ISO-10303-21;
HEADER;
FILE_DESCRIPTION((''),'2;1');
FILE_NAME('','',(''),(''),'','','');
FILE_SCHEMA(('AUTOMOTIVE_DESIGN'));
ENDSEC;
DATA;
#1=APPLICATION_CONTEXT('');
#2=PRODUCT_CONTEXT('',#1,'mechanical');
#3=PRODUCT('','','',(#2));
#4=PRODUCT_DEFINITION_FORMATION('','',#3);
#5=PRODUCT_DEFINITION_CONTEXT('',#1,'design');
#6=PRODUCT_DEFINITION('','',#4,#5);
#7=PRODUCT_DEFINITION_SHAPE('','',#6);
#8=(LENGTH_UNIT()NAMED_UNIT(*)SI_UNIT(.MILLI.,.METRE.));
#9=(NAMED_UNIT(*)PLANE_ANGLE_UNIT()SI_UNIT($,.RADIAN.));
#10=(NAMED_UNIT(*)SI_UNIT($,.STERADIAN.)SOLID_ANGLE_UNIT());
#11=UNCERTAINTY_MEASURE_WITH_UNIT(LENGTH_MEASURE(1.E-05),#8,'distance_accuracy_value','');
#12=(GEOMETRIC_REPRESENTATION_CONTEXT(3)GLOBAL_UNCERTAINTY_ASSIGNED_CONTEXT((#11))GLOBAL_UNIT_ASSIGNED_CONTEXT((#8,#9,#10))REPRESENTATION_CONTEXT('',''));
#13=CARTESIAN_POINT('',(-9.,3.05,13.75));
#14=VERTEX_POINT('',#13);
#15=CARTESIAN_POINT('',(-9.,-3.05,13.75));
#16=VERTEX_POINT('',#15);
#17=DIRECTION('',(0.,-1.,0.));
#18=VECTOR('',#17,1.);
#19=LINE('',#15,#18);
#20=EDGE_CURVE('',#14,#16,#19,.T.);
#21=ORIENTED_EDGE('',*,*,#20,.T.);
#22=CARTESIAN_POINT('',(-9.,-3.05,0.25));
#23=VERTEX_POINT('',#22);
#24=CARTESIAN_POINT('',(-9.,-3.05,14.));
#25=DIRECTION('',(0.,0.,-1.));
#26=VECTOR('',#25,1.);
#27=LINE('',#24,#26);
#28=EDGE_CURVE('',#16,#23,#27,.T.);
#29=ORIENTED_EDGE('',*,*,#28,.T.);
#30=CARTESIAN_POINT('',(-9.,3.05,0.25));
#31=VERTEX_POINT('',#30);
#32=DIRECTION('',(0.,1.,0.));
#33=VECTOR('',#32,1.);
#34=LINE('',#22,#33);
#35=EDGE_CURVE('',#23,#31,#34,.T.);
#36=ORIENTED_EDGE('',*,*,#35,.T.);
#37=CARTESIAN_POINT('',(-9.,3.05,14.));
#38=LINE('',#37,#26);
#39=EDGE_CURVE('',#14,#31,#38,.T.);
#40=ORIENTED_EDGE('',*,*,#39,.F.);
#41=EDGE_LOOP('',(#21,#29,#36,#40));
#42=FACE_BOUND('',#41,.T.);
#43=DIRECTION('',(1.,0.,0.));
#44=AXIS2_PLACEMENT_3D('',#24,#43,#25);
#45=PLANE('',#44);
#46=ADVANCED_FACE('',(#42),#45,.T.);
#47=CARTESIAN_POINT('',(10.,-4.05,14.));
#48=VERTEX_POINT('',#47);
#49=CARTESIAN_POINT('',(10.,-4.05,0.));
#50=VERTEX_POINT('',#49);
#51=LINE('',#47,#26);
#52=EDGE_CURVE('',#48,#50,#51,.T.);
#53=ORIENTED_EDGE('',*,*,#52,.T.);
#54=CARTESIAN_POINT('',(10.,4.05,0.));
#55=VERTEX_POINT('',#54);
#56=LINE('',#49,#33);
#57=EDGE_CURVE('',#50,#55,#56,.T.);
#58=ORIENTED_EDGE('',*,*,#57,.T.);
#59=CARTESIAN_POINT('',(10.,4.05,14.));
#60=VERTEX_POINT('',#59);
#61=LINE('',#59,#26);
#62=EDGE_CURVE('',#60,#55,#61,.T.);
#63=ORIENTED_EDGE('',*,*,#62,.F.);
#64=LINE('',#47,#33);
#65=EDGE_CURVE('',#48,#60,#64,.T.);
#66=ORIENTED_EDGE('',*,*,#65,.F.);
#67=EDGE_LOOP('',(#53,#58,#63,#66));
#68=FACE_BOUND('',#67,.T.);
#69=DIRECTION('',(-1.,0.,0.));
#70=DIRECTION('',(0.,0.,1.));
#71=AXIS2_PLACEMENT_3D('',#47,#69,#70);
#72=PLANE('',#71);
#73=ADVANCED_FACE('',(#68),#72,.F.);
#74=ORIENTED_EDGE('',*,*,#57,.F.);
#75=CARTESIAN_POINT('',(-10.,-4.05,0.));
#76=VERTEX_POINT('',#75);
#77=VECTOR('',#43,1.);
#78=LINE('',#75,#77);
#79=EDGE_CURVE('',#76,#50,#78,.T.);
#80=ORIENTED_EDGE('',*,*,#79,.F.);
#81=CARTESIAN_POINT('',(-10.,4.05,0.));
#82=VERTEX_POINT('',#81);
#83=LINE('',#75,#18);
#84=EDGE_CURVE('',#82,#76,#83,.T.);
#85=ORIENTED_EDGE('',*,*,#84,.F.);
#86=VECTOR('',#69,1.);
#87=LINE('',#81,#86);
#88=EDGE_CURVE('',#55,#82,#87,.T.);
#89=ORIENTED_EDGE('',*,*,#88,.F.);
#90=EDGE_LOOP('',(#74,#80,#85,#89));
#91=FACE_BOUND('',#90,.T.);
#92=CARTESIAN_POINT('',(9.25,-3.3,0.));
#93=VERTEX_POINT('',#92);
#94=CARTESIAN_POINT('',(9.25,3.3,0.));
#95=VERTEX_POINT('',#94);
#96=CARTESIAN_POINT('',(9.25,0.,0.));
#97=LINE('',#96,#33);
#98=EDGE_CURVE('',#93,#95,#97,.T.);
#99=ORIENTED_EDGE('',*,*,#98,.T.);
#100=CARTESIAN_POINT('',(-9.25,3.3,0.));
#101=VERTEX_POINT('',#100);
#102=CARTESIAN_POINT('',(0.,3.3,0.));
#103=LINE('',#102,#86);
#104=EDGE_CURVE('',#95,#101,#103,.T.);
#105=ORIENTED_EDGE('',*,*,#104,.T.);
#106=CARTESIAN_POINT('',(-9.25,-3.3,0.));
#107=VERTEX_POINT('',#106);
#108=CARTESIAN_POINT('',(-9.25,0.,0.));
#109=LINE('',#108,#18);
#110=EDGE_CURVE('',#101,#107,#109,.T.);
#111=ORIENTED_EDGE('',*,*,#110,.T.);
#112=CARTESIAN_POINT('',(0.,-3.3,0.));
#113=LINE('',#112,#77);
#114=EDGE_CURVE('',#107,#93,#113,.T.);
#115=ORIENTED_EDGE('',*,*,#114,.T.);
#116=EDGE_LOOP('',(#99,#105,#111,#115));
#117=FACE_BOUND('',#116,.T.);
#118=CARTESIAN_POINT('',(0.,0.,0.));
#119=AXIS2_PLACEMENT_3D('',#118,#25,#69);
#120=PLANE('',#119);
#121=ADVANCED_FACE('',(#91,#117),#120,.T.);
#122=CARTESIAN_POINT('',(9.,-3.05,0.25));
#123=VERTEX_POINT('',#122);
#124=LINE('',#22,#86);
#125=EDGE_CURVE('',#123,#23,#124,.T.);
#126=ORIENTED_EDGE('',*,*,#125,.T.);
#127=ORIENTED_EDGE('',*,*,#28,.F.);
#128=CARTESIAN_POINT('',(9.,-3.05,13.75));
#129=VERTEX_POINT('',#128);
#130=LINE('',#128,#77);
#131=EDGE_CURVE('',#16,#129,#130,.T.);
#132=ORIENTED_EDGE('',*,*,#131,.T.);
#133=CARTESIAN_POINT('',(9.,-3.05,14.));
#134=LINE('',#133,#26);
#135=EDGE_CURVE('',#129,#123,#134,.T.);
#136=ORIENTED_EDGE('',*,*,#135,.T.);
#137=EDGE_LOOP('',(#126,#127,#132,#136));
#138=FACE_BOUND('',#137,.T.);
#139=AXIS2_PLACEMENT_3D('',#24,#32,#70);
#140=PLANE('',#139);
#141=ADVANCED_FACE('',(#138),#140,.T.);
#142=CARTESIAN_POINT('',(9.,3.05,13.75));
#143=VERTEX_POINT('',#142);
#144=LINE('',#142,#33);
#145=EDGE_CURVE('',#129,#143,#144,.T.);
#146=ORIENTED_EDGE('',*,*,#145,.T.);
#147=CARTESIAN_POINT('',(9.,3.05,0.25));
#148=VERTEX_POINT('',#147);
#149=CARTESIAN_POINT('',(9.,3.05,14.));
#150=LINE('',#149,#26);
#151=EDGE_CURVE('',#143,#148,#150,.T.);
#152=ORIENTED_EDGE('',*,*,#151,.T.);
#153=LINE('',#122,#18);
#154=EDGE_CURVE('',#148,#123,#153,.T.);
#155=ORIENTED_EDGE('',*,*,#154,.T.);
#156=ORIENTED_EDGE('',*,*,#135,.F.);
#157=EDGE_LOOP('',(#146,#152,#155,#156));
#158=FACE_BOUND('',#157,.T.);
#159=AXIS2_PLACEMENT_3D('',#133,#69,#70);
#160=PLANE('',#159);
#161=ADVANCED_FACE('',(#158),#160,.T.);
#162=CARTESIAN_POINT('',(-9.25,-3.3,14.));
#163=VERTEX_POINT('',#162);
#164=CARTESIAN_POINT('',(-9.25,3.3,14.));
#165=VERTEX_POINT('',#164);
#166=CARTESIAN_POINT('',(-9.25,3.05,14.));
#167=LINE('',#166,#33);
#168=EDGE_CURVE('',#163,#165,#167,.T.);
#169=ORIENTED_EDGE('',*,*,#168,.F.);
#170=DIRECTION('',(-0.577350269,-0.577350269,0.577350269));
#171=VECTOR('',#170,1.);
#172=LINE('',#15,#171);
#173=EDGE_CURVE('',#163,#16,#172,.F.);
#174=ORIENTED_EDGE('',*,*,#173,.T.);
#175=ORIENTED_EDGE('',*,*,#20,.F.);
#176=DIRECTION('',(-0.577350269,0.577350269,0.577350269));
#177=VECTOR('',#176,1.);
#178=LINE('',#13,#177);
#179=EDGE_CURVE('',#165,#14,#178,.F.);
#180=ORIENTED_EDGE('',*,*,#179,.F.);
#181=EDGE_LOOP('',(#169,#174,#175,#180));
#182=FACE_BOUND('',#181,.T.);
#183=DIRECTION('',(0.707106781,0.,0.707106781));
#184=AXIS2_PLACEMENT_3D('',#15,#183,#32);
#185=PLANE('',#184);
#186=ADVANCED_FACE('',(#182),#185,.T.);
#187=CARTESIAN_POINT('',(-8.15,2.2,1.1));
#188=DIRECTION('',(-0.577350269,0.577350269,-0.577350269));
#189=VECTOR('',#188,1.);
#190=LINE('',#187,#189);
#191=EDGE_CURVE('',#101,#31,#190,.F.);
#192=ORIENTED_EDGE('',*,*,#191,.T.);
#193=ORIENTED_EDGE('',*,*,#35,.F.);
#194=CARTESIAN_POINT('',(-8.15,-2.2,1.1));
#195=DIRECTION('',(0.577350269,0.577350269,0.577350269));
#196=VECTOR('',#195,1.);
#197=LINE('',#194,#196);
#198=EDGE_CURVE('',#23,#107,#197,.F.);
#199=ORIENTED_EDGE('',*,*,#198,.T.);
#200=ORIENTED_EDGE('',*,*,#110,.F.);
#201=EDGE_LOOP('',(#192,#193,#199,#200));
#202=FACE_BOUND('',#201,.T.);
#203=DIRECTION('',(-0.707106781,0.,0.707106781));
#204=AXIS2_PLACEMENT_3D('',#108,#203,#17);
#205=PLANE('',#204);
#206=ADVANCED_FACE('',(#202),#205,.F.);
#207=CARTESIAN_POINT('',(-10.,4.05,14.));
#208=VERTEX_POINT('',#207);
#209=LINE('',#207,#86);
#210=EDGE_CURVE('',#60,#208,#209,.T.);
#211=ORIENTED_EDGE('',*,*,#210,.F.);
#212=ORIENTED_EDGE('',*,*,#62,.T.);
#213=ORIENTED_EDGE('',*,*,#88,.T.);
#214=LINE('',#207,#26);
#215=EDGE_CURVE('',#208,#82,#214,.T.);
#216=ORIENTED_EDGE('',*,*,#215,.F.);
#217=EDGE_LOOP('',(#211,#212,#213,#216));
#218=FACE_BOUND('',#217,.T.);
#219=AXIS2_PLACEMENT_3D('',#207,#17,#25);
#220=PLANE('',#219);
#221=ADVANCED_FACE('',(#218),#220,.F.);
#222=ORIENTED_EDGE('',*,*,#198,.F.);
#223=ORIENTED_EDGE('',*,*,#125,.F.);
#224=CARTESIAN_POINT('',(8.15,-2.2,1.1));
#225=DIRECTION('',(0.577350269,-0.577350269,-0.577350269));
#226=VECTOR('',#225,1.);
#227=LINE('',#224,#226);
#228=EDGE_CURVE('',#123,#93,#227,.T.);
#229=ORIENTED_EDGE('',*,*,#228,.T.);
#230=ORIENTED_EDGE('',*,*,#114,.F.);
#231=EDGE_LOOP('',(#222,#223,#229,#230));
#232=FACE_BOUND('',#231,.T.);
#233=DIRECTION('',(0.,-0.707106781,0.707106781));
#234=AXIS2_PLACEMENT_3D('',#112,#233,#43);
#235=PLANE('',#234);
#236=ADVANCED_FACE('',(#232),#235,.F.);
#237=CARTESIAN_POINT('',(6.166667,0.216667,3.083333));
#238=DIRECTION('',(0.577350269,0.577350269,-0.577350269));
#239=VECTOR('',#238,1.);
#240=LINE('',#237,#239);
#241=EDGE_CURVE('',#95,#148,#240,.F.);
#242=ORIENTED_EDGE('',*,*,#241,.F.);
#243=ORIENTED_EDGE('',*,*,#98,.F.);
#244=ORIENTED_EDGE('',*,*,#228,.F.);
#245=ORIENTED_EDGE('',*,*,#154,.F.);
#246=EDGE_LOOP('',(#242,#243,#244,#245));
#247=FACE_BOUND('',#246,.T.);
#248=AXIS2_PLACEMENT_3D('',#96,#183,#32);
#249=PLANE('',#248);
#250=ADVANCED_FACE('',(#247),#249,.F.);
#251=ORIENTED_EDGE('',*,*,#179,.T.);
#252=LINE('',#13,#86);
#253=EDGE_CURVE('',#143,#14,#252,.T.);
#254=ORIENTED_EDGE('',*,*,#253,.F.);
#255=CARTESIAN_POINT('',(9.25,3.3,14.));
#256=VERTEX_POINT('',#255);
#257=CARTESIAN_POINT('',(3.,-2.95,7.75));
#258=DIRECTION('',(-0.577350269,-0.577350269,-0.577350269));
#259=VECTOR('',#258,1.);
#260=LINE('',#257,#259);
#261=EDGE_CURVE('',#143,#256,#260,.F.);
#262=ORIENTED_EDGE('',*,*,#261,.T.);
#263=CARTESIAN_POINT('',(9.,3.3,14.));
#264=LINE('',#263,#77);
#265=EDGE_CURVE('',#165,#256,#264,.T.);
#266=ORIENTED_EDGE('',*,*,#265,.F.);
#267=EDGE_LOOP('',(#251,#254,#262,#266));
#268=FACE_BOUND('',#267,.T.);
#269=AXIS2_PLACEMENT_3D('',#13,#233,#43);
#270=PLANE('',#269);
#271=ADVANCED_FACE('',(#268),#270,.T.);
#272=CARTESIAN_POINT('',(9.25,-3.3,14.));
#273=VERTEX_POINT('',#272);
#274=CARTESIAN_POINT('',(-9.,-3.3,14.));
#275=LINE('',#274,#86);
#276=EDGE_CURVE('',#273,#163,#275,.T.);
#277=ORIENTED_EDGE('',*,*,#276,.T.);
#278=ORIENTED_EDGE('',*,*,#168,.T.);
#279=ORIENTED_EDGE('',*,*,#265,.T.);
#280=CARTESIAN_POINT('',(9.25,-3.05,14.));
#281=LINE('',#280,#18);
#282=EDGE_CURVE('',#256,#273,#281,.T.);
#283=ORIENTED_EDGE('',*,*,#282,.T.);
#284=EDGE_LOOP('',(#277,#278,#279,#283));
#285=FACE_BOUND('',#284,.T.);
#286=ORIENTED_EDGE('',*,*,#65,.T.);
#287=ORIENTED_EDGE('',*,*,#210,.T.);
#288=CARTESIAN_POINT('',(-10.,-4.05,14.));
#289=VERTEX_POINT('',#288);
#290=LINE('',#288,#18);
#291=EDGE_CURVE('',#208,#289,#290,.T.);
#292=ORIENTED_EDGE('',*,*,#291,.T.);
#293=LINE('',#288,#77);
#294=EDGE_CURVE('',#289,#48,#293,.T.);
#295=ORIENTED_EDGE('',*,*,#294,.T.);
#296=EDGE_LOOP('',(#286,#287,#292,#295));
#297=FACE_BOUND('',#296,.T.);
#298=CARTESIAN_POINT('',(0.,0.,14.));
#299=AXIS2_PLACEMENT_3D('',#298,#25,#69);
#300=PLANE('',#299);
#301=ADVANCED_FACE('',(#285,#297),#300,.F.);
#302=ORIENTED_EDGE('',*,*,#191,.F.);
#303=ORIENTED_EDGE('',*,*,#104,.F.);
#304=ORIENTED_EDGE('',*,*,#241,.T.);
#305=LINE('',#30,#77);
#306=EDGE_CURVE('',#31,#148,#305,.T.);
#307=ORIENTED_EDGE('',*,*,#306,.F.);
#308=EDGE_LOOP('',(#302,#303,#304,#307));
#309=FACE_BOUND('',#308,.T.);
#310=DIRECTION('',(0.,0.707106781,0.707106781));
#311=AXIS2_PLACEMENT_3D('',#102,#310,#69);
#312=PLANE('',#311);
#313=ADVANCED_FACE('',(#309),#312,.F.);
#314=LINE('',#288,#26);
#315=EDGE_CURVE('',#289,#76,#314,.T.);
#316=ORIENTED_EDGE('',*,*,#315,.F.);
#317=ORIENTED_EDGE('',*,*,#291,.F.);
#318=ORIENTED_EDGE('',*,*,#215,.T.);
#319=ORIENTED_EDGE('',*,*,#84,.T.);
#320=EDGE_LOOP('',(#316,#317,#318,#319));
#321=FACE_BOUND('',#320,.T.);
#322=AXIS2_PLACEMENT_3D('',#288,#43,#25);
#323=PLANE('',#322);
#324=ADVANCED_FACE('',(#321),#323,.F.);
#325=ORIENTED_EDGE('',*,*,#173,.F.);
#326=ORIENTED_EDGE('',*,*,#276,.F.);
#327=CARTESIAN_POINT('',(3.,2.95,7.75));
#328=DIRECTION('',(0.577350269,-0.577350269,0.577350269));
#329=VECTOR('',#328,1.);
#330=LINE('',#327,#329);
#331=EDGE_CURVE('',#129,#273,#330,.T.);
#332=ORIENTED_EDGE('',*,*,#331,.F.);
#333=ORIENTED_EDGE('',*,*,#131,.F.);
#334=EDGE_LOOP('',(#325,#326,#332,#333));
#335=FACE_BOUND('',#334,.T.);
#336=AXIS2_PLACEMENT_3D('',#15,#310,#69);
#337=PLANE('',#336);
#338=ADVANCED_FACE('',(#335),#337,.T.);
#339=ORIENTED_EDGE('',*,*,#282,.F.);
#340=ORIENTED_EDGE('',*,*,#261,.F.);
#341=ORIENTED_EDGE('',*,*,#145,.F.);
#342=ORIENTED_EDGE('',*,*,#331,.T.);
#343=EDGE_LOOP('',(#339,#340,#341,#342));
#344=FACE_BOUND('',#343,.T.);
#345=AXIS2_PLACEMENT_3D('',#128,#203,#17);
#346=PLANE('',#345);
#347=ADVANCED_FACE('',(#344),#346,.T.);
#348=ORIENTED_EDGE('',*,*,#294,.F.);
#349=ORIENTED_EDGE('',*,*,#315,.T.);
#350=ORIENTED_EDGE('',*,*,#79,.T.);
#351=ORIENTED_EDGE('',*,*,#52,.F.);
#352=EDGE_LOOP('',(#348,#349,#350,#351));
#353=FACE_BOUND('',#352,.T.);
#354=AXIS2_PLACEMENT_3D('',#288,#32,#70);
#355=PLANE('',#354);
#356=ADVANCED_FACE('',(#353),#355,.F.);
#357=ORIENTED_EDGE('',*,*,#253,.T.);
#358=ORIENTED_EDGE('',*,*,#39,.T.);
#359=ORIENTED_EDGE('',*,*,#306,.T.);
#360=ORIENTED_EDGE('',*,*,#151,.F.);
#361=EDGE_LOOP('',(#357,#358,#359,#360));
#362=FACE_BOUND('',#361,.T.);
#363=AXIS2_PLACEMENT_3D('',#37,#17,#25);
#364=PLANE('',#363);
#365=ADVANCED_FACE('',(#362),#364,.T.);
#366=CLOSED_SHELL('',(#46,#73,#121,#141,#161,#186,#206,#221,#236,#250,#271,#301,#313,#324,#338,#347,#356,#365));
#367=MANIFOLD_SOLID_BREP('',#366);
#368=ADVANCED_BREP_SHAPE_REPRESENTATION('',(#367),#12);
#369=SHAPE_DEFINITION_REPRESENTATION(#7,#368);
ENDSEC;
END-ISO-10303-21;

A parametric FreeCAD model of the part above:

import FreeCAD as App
import Part
import Sketcher

V = App.Vector


def edges_at(feature, points):
    """Names of the edges that pass closest to the given points."""
    edges = feature.Shape.Edges
    near = lambda p: min(range(len(edges)), key=lambda i: edges[i].distToShape(Part.Vertex(*p))[0])
    return sorted({f"Edge{near(p) + 1}" for p in points})


def add_polygon(sketch, points):
    """Adds a closed chain of lines whose ends are joined by coincident constraints."""
    first, n = sketch.GeometryCount, len(points)
    for a, b in zip(points, points[1:] + points[:1]):
        sketch.addGeometry(Part.LineSegment(App.Vector(*a, 0), App.Vector(*b, 0)), False)
    for i in range(n):
        sketch.addConstraint(Sketcher.Constraint("Coincident", first + i, 2, first + (i + 1) % n, 1))

doc = App.newDocument("Part")
body = doc.addObject("PartDesign::Body", "Body")

# Sketch on XY plane
sketch1 = body.newObject("Sketcher::SketchObject", "Sketch")
sketch1.AttachmentSupport = (doc.getObject("XY_Plane"), [""])
sketch1.MapMode = "FlatFace"
add_polygon(sketch1, [(-10, 4), (-10, -4), (10, -4), (10, 4)])  # lines 0-3
add_polygon(sketch1, [(9, -3), (-9, -3), (-9, 3), (9, 3)])  # lines 4-7
sketch1.addConstraint([
    Sketcher.Constraint("Vertical", 0),
    Sketcher.Constraint("Horizontal", 1),
    Sketcher.Constraint("Vertical", 2),
    Sketcher.Constraint("Horizontal", 3),
    Sketcher.Constraint("Horizontal", 4),
    Sketcher.Constraint("Vertical", 5),
    Sketcher.Constraint("Horizontal", 6),
    Sketcher.Constraint("Vertical", 7),
    Sketcher.Constraint("Symmetric", 0, 2, 2, 2, -1, 1),
    Sketcher.Constraint("Symmetric", 4, 2, 6, 2, -1, 1),
    Sketcher.Constraint("DistanceX", 1, 1, 1, 2, 20.0),
    Sketcher.Constraint("DistanceX", 4, 2, 4, 1, 18.0),
    Sketcher.Constraint("DistanceY", 0, 2, 0, 1, 8.1),
    Sketcher.Constraint("DistanceY", 5, 1, 5, 2, 6.1),
])
pad1 = body.newObject("PartDesign::Pad", "Pad")
pad1.Profile = sketch1
pad1.Length = 14
doc.recompute()

chamfer = body.newObject("PartDesign::Chamfer", "Chamfer")
chamfer.Base = (pad1, edges_at(pad1, [
    (9, 0, 0),
    (0, 3.05, 0),
    (-9, 0, 0),
    (0, -3.05, 0),
    (9, 0, 14),
    (0, 3.05, 14),
    (-9, 0, 14),
    (0, -3.05, 14),
]))
chamfer.Size = 0.25

doc.recompute()
